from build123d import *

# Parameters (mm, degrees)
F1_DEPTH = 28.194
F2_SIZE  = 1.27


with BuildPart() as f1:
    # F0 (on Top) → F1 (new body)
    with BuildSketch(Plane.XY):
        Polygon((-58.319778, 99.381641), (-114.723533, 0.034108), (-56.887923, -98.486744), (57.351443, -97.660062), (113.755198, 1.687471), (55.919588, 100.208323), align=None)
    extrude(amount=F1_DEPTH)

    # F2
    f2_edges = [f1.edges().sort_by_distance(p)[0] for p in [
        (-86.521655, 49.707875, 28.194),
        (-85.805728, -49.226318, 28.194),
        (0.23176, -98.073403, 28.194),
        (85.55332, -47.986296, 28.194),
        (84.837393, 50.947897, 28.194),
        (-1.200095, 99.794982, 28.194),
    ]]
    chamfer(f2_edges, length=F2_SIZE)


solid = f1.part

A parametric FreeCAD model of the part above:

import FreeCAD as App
import Part
import Sketcher

V = App.Vector
Q = App.Units.Quantity


def edges_at(feature, points):
    """Names of the edges that pass closest to the given points."""
    edges = feature.Shape.Edges
    near = lambda p: min(range(len(edges)), key=lambda i: edges[i].distToShape(Part.Vertex(*p))[0])
    return sorted({f"Edge{near(p) + 1}" for p in points})


def add_polygon(sketch, points):
    """Adds a closed chain of lines whose ends are joined by coincident constraints."""
    first, n = sketch.GeometryCount, len(points)
    for a, b in zip(points, points[1:] + points[:1]):
        sketch.addGeometry(Part.LineSegment(App.Vector(*a, 0), App.Vector(*b, 0)), False)
    for i in range(n):
        sketch.addConstraint(Sketcher.Constraint("Coincident", first + i, 2, first + (i + 1) % n, 1))

doc = App.newDocument("Part")
body = doc.addObject("PartDesign::Body", "Body")

sketch1 = body.newObject("Sketcher::SketchObject", "Sketch")
sketch1.AttachmentSupport = (doc.getObject("XY_Plane"), [""])
sketch1.MapMode = "FlatFace"
add_polygon(sketch1, [(-58, 99), (-115, 0), (-57, -98), (57, -98), (114, 2), (56, 100)])
sketch1.addConstraint([
    Sketcher.Constraint("Parallel", 0, 3),
    Sketcher.Constraint("Parallel", 1, 4),
    Sketcher.Constraint("Parallel", 2, 5),
    Sketcher.Constraint("Equal", 0, 1),
    Sketcher.Constraint("Equal", 1, 2),
    Sketcher.Constraint("Equal", 2, 3),
    Sketcher.Constraint("DistanceY", 2, 2, -1, 1, 97.660062),
    Sketcher.Constraint("DistanceY", -1, 1, 3, 2, 1.687471),
    Sketcher.Constraint("DistanceY", -1, 1, 5, 2, 99.381641),
    Sketcher.Constraint("DistanceX", 0, 2, 1, 2, 57.83561),
    Sketcher.Constraint("DistanceX", 1, 2, 3, 2, 170.643121),
    Sketcher.Constraint("DistanceX", 0, 2, -1, 1, 114.723533),
])
pad1 = body.newObject("PartDesign::Pad", "Pad")
pad1.Profile = sketch1
pad1.Length = Q("1.11 in")
doc.recompute()

chamfer = body.newObject("PartDesign::Chamfer", "Chamfer")
chamfer.Base = (pad1, edges_at(pad1, [
    (-86.522, 49.708, 28.194),
    (-85.806, -49.226, 28.194),
    (0.232, -98.073, 28.194),
    (85.553, -47.986, 28.194),
    (84.837, 50.948, 28.194),
    (-1.2, 99.795, 28.194),
]))
chamfer.Size = Q("0.05 in")

doc.recompute()
